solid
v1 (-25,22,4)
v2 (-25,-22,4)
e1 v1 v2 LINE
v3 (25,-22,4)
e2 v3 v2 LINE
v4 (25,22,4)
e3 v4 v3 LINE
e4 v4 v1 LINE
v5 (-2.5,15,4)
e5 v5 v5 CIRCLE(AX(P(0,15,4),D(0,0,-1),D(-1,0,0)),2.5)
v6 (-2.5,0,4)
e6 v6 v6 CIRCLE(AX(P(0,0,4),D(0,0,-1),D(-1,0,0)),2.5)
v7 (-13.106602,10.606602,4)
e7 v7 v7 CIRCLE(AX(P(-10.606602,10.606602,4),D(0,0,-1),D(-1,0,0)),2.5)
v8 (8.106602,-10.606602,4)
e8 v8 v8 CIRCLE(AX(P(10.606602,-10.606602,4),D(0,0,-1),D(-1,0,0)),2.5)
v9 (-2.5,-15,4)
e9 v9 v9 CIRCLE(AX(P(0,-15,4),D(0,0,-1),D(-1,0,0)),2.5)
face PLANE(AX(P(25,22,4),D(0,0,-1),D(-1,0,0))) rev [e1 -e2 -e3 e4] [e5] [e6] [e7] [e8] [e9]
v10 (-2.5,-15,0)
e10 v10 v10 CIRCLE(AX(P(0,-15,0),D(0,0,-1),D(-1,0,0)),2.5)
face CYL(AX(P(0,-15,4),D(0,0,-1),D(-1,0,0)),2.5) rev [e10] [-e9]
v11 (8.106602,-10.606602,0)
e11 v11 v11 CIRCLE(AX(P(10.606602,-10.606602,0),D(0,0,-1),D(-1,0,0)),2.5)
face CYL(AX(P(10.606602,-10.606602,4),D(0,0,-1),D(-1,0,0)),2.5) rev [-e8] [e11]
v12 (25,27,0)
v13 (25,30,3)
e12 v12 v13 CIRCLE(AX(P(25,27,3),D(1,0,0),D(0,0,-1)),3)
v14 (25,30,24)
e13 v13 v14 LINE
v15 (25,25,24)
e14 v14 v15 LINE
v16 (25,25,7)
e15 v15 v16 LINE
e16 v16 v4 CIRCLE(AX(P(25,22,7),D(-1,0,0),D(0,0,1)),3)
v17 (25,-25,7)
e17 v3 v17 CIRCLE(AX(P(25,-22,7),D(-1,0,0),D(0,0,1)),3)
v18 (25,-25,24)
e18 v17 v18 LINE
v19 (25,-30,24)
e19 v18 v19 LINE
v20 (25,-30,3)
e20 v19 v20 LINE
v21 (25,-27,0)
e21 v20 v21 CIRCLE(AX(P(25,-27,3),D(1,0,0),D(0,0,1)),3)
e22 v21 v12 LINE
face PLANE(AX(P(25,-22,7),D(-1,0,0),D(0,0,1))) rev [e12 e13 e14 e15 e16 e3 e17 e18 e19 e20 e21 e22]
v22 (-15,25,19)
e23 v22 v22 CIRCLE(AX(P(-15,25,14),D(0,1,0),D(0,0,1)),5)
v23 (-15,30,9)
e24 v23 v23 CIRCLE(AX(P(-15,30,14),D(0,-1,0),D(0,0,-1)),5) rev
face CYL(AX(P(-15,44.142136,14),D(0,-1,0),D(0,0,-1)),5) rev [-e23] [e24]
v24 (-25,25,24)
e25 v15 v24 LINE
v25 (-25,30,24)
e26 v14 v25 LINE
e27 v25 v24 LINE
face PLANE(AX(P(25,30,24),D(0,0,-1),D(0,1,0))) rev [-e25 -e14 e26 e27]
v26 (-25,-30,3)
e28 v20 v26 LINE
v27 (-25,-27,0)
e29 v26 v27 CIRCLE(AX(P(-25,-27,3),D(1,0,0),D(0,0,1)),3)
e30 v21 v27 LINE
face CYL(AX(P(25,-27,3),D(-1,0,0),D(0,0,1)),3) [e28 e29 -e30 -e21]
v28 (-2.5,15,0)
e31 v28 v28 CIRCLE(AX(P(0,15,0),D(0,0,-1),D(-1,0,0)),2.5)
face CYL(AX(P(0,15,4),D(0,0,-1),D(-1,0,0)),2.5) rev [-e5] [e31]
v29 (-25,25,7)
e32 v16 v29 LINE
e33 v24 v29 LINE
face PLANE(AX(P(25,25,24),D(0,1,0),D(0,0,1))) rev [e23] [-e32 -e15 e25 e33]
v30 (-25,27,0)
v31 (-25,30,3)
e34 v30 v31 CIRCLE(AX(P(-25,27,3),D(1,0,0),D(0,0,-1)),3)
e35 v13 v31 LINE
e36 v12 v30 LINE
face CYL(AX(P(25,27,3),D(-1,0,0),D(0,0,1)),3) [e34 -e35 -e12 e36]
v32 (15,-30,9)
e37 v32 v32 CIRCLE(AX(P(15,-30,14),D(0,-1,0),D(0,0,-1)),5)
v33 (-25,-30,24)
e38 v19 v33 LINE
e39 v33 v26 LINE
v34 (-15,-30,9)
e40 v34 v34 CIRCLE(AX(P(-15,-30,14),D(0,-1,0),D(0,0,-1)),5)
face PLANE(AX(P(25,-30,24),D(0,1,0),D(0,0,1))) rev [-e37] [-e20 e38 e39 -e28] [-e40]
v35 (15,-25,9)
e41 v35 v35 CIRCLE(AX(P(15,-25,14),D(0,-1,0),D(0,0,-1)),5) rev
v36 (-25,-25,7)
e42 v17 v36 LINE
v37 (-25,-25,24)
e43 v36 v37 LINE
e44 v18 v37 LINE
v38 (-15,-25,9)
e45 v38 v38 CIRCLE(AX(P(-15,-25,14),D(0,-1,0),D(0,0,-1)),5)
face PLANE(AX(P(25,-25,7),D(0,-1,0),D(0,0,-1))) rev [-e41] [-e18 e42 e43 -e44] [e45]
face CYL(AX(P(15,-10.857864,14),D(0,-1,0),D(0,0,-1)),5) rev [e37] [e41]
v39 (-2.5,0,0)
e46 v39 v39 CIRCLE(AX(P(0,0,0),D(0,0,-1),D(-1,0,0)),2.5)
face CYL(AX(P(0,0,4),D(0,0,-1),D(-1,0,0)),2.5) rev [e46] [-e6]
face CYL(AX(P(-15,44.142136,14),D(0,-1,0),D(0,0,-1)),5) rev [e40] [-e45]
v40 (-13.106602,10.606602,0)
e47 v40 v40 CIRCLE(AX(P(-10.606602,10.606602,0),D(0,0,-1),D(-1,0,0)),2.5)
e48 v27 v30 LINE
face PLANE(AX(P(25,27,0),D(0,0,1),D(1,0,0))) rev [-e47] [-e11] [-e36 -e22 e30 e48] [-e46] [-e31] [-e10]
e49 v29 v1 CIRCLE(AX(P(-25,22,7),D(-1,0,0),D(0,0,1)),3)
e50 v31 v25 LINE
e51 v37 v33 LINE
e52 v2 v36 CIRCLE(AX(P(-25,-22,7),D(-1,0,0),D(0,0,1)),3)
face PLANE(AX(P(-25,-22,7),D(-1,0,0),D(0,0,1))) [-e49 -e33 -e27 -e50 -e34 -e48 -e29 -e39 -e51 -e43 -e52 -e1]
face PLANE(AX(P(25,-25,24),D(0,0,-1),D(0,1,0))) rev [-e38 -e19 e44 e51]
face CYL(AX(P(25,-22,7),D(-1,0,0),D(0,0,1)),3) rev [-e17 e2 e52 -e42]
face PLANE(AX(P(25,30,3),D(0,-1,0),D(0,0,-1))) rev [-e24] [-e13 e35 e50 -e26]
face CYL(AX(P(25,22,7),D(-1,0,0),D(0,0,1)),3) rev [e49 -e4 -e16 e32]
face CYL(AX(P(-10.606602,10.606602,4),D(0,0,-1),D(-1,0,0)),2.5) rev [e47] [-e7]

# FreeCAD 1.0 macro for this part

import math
import FreeCAD as App
import Part
import Sketcher
from FreeCAD import Vector
Q = App.Units.Quantity

doc = App.newDocument("Part")
body = doc.addObject("PartDesign::Body", "Body")

sketch1 = body.newObject("Sketcher::SketchObject", "Sketch")
sketch1.AttachmentSupport = (doc.getObject("YZ_Plane"), [""])
sketch1.MapMode = "FlatFace"
sketch1.addGeometry(Part.LineSegment(Vector(-27, 0, 0), Vector(27, 0, 0)), False)
sketch1.addGeometry(Part.ArcOfCircle(Part.Circle(Vector(27, 3, 0), Vector(0, 0, 1), 3), math.radians(-90), math.radians(0)), False)
sketch1.addGeometry(Part.LineSegment(Vector(30, 3, 0), Vector(30, 24, 0)), False)
sketch1.addGeometry(Part.LineSegment(Vector(30, 24, 0), Vector(25, 24, 0)), False)
sketch1.addGeometry(Part.LineSegment(Vector(25, 24, 0), Vector(25, 7, 0)), False)
sketch1.addGeometry(Part.ArcOfCircle(Part.Circle(Vector(22, 7, 0), Vector(0, 0, 1), 3), math.radians(-90), math.radians(0)), False)
sketch1.addGeometry(Part.LineSegment(Vector(22, 4, 0), Vector(-22, 4, 0)), False)
sketch1.addGeometry(Part.ArcOfCircle(Part.Circle(Vector(-22, 7, 0), Vector(0, 0, 1), 3), math.radians(180), math.radians(270)), False)
sketch1.addGeometry(Part.LineSegment(Vector(-25, 7, 0), Vector(-25, 24, 0)), False)
sketch1.addGeometry(Part.LineSegment(Vector(-25, 24, 0), Vector(-30, 24, 0)), False)
sketch1.addGeometry(Part.LineSegment(Vector(-30, 24, 0), Vector(-30, 3, 0)), False)
sketch1.addGeometry(Part.ArcOfCircle(Part.Circle(Vector(-27, 3, 0), Vector(0, 0, 1), 3), math.radians(180), math.radians(270)), False)
sketch1.addConstraint(Sketcher.Constraint("Tangent", 0, 2, 1, 1))
sketch1.addConstraint(Sketcher.Constraint("Tangent", 1, 2, 2, 1))
sketch1.addConstraint(Sketcher.Constraint("Coincident", 2, 2, 3, 1))
sketch1.addConstraint(Sketcher.Constraint("Coincident", 3, 2, 4, 1))
sketch1.addConstraint(Sketcher.Constraint("Tangent", 4, 2, 5, 2))
sketch1.addConstraint(Sketcher.Constraint("Tangent", 5, 1, 6, 1))
sketch1.addConstraint(Sketcher.Constraint("Tangent", 6, 2, 7, 2))
sketch1.addConstraint(Sketcher.Constraint("Tangent", 7, 1, 8, 1))
sketch1.addConstraint(Sketcher.Constraint("Coincident", 8, 2, 9, 1))
sketch1.addConstraint(Sketcher.Constraint("Coincident", 9, 2, 10, 1))
sketch1.addConstraint(Sketcher.Constraint("Tangent", 10, 2, 11, 1))
sketch1.addConstraint(Sketcher.Constraint("Tangent", 11, 2, 0, 1))
sketch1.addConstraint(Sketcher.Constraint("Horizontal", 0))
sketch1.addConstraint(Sketcher.Constraint("Vertical", 2))
sketch1.addConstraint(Sketcher.Constraint("Horizontal", 3))
sketch1.addConstraint(Sketcher.Constraint("Vertical", 4))
sketch1.addConstraint(Sketcher.Constraint("Horizontal", 6))
sketch1.addConstraint(Sketcher.Constraint("Vertical", 8))
sketch1.addConstraint(Sketcher.Constraint("Horizontal", 9))
sketch1.addConstraint(Sketcher.Constraint("Vertical", 10))
sketch1.addConstraint(Sketcher.Constraint("Equal", 1, 5))
sketch1.addConstraint(Sketcher.Constraint("Equal", 5, 7))
sketch1.addConstraint(Sketcher.Constraint("Equal", 7, 11))
sketch1.addConstraint(Sketcher.Constraint("Symmetric", 0, 2, 11, 2, -1, 1))
sketch1.addConstraint(Sketcher.Constraint("Symmetric", 3, 2, 8, 2, -2))
sketch1.addConstraint(Sketcher.Constraint("Radius", 1, Q("3 mm")))
sketch1.addConstraint(Sketcher.Constraint("DistanceX", 0, 1, 0, 2, Q("54 mm")))
sketch1.addConstraint(Sketcher.Constraint("DistanceX", 3, 2, 3, 1, Q("5 mm")))
sketch1.addConstraint(Sketcher.Constraint("DistanceY", 2, 1, 2, 2, Q("21 mm")))
sketch1.addConstraint(Sketcher.Constraint("DistanceY", 4, 2, 4, 1, Q("17 mm")))
pad1 = body.newObject("PartDesign::Pad", "Pad")
pad1.Profile = sketch1
pad1.Length = 50
pad1.Midplane = True

sketch2 = body.newObject("Sketcher::SketchObject", "Sketch001")
sketch2.AttachmentSupport = (doc.getObject("XY_Plane"), [""])
sketch2.MapMode = "FlatFace"
sketch2.addGeometry(Part.Circle(Vector(0, 0, 0), Vector(0, 0, 1), 2.5), False)
sketch2.addGeometry(Part.Circle(Vector(0, 15, 0), Vector(0, 0, 1), 2.5), False)
sketch2.addGeometry(Part.Circle(Vector(-10.6, 10.6, 0), Vector(0, 0, 1), 2.5), False)
sketch2.addGeometry(Part.Circle(Vector(10.6, -10.6, 0), Vector(0, 0, 1), 2.5), False)
sketch2.addGeometry(Part.Circle(Vector(0, -15, 0), Vector(0, 0, 1), 2.5), False)
sketch2.addConstraint(Sketcher.Constraint("Coincident", 0, 3, -1, 1))
sketch2.addConstraint(Sketcher.Constraint("Equal", 0, 1))
sketch2.addConstraint(Sketcher.Constraint("Equal", 1, 2))
sketch2.addConstraint(Sketcher.Constraint("Equal", 2, 3))
sketch2.addConstraint(Sketcher.Constraint("Equal", 3, 4))
sketch2.addConstraint(Sketcher.Constraint("Symmetric", 2, 3, 3, 3, -1, 1))
sketch2.addConstraint(Sketcher.Constraint("Symmetric", 1, 3, 4, 3, -1, 1))
sketch2.addConstraint(Sketcher.Constraint("PointOnObject", 1, 3, -2))
sketch2.addConstraint(Sketcher.Constraint("Diameter", 0, Q("5 mm")))
sketch2.addConstraint(Sketcher.Constraint("DistanceY", -1, 1, 1, 3, Q("15 mm")))
sketch2.addConstraint(Sketcher.Constraint("DistanceX", 2, 3, -1, 1, Q("10.606602 mm")))
sketch2.addConstraint(Sketcher.Constraint("DistanceY", -1, 1, 2, 3, Q("10.606602 mm")))
pocket1 = body.newObject("PartDesign::Pocket", "Pocket")
pocket1.Profile = sketch2
pocket1.Length = 4
pocket1.Reversed = True

sketch3 = body.newObject("Sketcher::SketchObject", "Sketch002")
sketch3.AttachmentSupport = (doc.getObject("XZ_Plane"), [""])
sketch3.MapMode = "FlatFace"
sketch3.AttachmentOffset = App.Placement(Vector(0, 0, 30), App.Rotation())
sketch3.addGeometry(Part.Circle(Vector(-15, 14, 0), Vector(0, 0, 1), 5), False)
sketch3.addConstraint(Sketcher.Constraint("Diameter", 0, Q("10 mm")))
sketch3.addConstraint(Sketcher.Constraint("DistanceX", 0, 3, -1, 1, Q("15 mm")))
sketch3.addConstraint(Sketcher.Constraint("DistanceY", -1, 1, 0, 3, Q("14 mm")))
pocket2 = body.newObject("PartDesign::Pocket", "Pocket001")
pocket2.Profile = sketch3
pocket2.Length = 60

sketch4 = body.newObject("Sketcher::SketchObject", "Sketch003")
sketch4.AttachmentSupport = (doc.getObject("XZ_Plane"), [""])
sketch4.MapMode = "FlatFace"
sketch4.AttachmentOffset = App.Placement(Vector(0, 0, 30), App.Rotation())
sketch4.addGeometry(Part.Circle(Vector(15, 14, 0), Vector(0, 0, 1), 5), False)
sketch4.addConstraint(Sketcher.Constraint("Diameter", 0, Q("10 mm")))
sketch4.addConstraint(Sketcher.Constraint("DistanceX", -1, 1, 0, 3, Q("15 mm")))
sketch4.addConstraint(Sketcher.Constraint("DistanceY", -1, 1, 0, 3, Q("14 mm")))
pocket3 = body.newObject("PartDesign::Pocket", "Pocket002")
pocket3.Profile = sketch4
pocket3.Length = 5

doc.recompute()
